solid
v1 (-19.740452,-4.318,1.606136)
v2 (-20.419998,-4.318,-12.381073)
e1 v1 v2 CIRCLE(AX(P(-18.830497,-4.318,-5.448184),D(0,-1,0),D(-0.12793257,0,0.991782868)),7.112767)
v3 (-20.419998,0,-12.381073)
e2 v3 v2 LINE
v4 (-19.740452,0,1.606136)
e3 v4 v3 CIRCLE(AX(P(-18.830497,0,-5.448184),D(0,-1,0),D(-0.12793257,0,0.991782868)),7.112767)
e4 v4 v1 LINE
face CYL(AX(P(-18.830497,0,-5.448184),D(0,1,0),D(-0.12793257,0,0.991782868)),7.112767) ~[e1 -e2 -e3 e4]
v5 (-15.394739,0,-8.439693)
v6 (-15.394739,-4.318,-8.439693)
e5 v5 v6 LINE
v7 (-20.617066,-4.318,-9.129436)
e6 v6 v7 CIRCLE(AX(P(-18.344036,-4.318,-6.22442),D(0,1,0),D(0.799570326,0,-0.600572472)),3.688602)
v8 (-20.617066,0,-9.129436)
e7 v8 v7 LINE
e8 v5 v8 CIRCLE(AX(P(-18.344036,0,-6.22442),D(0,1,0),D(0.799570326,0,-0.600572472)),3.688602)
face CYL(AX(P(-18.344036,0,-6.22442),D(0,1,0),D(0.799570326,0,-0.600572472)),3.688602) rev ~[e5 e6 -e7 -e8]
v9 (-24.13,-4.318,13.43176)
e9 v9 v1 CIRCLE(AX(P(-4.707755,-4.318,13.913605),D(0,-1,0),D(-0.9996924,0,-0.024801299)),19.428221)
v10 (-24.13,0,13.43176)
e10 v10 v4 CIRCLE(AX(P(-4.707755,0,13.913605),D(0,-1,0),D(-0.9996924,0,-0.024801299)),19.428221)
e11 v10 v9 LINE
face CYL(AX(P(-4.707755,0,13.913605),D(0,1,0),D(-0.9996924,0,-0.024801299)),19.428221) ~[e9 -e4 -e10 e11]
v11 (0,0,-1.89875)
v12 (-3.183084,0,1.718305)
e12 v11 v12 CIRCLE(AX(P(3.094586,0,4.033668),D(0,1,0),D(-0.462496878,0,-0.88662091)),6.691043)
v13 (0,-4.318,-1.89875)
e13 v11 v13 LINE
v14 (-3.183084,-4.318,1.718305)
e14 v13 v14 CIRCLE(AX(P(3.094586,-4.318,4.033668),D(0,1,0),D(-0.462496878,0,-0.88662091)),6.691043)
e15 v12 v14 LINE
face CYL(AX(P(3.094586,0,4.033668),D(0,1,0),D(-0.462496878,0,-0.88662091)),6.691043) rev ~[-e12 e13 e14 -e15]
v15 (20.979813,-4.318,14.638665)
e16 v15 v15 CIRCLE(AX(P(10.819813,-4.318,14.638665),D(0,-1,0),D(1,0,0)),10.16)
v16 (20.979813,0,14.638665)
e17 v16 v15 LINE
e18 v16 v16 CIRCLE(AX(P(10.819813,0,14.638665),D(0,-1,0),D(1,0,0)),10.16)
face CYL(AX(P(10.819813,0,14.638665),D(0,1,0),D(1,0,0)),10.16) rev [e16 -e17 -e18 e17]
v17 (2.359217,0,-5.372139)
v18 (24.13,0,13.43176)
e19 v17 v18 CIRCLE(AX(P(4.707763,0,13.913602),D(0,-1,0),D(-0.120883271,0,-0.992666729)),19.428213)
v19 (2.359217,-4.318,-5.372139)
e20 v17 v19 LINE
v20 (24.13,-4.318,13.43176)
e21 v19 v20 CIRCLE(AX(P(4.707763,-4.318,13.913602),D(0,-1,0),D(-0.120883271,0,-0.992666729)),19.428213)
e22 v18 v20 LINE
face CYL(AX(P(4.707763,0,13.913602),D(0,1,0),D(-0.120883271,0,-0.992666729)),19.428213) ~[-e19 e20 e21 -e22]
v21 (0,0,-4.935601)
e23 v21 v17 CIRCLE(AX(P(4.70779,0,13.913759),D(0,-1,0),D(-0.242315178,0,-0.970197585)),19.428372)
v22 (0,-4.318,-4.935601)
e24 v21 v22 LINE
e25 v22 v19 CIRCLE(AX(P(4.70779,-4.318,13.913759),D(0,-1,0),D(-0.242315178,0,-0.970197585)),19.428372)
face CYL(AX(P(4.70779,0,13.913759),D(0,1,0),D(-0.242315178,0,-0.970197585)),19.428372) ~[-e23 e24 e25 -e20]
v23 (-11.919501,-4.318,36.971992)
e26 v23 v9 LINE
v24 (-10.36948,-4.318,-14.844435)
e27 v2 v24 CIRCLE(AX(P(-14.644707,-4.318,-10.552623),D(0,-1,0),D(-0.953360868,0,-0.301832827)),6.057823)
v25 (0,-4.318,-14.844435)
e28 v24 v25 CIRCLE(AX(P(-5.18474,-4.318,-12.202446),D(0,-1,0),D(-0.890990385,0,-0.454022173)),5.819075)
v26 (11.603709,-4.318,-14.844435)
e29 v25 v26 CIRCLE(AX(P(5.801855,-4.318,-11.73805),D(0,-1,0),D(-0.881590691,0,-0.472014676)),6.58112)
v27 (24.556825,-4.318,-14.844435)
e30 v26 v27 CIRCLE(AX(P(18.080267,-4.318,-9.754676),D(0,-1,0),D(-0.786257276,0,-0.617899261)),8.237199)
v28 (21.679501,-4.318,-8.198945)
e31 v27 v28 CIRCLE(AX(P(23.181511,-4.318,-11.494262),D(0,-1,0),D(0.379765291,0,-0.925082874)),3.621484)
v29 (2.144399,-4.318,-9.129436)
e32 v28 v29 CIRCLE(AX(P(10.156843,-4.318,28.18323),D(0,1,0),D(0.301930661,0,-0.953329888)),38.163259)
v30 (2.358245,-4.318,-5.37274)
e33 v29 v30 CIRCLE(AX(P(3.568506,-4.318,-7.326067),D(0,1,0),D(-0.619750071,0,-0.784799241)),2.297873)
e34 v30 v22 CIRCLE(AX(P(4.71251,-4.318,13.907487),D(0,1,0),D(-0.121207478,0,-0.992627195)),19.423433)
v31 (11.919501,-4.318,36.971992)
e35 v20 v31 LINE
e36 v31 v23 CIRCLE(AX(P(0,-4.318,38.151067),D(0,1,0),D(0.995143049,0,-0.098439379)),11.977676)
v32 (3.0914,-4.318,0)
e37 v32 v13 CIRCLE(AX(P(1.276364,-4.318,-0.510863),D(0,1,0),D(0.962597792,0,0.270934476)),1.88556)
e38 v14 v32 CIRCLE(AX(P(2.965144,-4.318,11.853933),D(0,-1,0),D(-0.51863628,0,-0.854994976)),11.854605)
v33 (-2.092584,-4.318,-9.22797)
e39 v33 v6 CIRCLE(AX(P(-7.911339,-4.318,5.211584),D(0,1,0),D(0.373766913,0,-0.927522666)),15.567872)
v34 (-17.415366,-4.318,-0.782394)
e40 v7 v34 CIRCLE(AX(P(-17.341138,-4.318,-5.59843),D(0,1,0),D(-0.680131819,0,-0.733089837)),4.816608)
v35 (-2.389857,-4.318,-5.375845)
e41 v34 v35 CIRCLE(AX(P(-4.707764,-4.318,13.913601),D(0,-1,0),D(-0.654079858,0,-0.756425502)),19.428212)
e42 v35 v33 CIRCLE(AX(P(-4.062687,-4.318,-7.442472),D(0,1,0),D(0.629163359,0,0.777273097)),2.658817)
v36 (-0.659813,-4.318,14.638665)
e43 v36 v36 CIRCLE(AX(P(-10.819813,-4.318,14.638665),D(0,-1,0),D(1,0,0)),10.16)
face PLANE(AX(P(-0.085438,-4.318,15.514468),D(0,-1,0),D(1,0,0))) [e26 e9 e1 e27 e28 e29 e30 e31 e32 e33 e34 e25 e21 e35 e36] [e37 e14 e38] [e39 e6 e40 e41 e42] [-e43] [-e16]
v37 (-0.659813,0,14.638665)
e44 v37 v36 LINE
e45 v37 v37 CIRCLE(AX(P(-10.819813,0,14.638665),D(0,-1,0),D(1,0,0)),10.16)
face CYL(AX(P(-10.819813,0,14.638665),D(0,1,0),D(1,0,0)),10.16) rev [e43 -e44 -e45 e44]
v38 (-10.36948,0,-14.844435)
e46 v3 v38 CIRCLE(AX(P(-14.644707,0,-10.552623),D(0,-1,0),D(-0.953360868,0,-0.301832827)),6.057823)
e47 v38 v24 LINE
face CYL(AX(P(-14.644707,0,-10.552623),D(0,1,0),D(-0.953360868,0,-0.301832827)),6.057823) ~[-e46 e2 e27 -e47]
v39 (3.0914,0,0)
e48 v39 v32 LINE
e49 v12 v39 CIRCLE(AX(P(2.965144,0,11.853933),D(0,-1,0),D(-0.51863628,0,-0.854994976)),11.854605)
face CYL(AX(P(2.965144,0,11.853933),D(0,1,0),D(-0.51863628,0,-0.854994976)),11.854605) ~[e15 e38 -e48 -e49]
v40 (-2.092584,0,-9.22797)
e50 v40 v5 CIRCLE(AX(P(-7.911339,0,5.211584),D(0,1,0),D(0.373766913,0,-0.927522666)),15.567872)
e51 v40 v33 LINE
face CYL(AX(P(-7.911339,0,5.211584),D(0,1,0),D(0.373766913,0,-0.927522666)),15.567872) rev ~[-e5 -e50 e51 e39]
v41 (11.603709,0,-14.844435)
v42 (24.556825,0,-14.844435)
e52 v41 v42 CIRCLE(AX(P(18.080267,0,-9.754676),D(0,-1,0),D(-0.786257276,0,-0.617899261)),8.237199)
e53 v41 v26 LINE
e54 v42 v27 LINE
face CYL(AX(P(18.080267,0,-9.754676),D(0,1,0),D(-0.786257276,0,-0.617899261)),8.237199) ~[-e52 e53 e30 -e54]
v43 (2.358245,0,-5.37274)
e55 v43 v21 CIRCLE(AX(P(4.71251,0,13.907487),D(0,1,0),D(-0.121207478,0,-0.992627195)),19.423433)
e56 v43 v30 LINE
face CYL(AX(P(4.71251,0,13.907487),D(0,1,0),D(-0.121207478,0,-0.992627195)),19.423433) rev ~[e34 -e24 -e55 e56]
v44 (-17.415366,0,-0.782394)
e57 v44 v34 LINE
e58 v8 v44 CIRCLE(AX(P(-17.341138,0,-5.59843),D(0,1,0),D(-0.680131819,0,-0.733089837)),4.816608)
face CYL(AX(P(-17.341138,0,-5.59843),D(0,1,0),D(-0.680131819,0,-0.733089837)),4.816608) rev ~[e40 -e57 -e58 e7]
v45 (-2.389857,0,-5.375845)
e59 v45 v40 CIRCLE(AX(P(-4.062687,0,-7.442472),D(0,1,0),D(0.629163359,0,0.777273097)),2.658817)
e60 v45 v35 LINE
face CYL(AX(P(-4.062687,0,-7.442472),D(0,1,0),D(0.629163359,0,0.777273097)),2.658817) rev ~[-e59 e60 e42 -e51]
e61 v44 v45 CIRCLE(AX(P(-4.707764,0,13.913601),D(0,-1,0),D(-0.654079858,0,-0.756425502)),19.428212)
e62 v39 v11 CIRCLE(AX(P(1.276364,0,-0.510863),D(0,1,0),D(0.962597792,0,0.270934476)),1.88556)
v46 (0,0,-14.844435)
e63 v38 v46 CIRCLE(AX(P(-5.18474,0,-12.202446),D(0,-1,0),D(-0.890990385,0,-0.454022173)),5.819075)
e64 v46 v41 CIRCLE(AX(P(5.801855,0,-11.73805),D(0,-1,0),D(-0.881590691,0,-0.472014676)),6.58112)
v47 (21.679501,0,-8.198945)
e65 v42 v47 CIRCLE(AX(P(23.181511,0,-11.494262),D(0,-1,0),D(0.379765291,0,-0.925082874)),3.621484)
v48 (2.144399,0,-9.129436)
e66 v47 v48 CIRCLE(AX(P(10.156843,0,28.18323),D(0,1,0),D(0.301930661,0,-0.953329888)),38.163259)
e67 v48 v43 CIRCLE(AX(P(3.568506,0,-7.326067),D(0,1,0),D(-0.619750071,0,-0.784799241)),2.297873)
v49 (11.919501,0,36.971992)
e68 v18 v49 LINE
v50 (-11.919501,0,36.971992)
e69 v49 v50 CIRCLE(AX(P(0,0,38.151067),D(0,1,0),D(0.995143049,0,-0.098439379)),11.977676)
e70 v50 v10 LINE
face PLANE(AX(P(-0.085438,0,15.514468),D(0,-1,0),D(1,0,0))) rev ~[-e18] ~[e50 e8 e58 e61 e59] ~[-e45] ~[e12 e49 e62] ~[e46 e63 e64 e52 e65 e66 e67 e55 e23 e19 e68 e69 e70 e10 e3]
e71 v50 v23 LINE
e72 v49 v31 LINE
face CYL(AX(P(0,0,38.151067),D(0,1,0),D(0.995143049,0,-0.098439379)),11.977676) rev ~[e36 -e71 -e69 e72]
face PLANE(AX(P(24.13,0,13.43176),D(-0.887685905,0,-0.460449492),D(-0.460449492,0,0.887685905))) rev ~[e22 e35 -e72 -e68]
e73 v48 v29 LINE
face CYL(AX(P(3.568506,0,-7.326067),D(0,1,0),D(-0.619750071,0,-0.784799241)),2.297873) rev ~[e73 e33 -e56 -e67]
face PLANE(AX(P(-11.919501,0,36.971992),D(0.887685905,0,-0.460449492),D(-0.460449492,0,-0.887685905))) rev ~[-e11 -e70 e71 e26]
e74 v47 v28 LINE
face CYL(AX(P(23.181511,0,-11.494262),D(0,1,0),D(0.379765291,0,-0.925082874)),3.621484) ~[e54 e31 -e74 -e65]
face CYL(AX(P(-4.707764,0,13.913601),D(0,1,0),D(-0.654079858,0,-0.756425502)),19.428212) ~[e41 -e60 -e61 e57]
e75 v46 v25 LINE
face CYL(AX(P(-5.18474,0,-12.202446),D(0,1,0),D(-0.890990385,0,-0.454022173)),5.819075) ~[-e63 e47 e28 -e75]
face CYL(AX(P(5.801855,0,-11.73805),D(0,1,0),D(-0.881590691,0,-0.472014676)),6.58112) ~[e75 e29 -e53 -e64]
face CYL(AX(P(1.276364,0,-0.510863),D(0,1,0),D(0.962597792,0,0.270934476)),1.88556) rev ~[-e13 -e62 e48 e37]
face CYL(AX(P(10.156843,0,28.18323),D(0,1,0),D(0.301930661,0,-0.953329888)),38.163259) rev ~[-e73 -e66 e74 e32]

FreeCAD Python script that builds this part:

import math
import FreeCAD as App
import Part
import Sketcher
from FreeCAD import Vector
Q = App.Units.Quantity

doc = App.newDocument("Part")
body = doc.addObject("PartDesign::Body", "Body")

sketch1 = body.newObject("Sketcher::SketchObject", "Sketch")
sketch1.AttachmentSupport = (doc.getObject("XZ_Plane"), [""])
sketch1.MapMode = "FlatFace"
sketch1.addGeometry(Part.ArcOfCircle(Part.Circle(Vector(0, 38.151067, 0), Vector(0, 0, 1), 11.977676), math.radians(-174.35069), math.radians(-5.64931)), False)
sketch1.addGeometry(Part.LineSegment(Vector(-11.919501, 36.971992, 0), Vector(-24.13, 13.43176, 0)), False)
sketch1.addGeometry(Part.ArcOfCircle(Part.Circle(Vector(-4.707755, 13.913605, 0), Vector(0, 0, 1), 19.428221), math.radians(-178.578845), math.radians(-140.692357)), False)
sketch1.addGeometry(Part.ArcOfCircle(Part.Circle(Vector(-18.830497, -5.448184, 0), Vector(0, 0, 1), 7.112767), math.radians(97.35014), math.radians(257.086988)), False)
sketch1.addGeometry(Part.ArcOfCircle(Part.Circle(Vector(-14.644707, -10.552623, 0), Vector(0, 0, 1), 6.057823), math.radians(-162.43228), math.radians(-45.110917)), False)
sketch1.addGeometry(Part.ArcOfCircle(Part.Circle(Vector(-5.18474, -12.202446, 0), Vector(0, 0, 1), 5.819075), math.radians(-152.997963), math.radians(-27.002037)), False)
sketch1.addGeometry(Part.ArcOfCircle(Part.Circle(Vector(5.801855, -11.73805, 0), Vector(0, 0, 1), 6.58112), math.radians(-151.834847), math.radians(-28.165153)), False)
sketch1.addGeometry(Part.ArcOfCircle(Part.Circle(Vector(18.080267, -9.754676, 0), Vector(0, 0, 1), 8.237199), math.radians(-141.837111), math.radians(-38.162889)), False)
sketch1.addGeometry(Part.ArcOfCircle(Part.Circle(Vector(23.181511, -11.494262, 0), Vector(0, 0, 1), 3.621484), math.radians(-67.680855), math.radians(114.503564)), False)
sketch1.addGeometry(Part.ArcOfCircle(Part.Circle(Vector(10.156843, 28.18323, 0), Vector(0, 0, 1), 38.163259), math.radians(-102.119526), math.radians(-72.4264)), False)
sketch1.addGeometry(Part.ArcOfCircle(Part.Circle(Vector(3.568506, -7.326067, 0), Vector(0, 0, 1), 2.297873), math.radians(121.781913), math.radians(231.702114)), False)
sketch1.addGeometry(Part.ArcOfCircle(Part.Circle(Vector(4.71251, 13.907487, 0), Vector(0, 0, 1), 19.423433), math.radians(-104.041218), math.radians(-96.961795)), False)
sketch1.addGeometry(Part.ArcOfCircle(Part.Circle(Vector(4.70779, 13.913759, 0), Vector(0, 0, 1), 19.428372), math.radians(-104.023224), math.radians(-96.943103)), False)
sketch1.addGeometry(Part.ArcOfCircle(Part.Circle(Vector(4.707763, 13.913602, 0), Vector(0, 0, 1), 19.428213), math.radians(-96.943081), math.radians(-1.421146)), False)
sketch1.addGeometry(Part.LineSegment(Vector(24.13, 13.43176, 0), Vector(11.919501, 36.971992, 0)), False)
sketch1.addGeometry(Part.ArcOfCircle(Part.Circle(Vector(-4.707764, 13.913601, 0), Vector(0, 0, 1), 19.428212), math.radians(-130.849917), math.radians(-83.147934)), False)
sketch1.addGeometry(Part.ArcOfCircle(Part.Circle(Vector(-4.062687, -7.442472, 0), Vector(0, 0, 1), 2.658817), math.radians(-42.185904), math.radians(51.011576)), False)
sketch1.addGeometry(Part.ArcOfCircle(Part.Circle(Vector(-7.911339, 5.211584, 0), Vector(0, 0, 1), 15.567872), math.radians(-118.73081), math.radians(-68.051879)), False)
sketch1.addGeometry(Part.ArcOfCircle(Part.Circle(Vector(-18.344036, -6.22442, 0), Vector(0, 0, 1), 3.688602), math.radians(-128.041414), math.radians(-36.910909)), False)
sketch1.addGeometry(Part.ArcOfCircle(Part.Circle(Vector(-17.341138, -5.59843, 0), Vector(0, 0, 1), 4.816608), math.radians(90.883014), math.radians(227.146055)), False)
sketch1.addGeometry(Part.ArcOfCircle(Part.Circle(Vector(2.965144, 11.853933, 0), Vector(0, 0, 1), 11.854605), math.radians(-121.24082), math.radians(-89.389769)), False)
sketch1.addGeometry(Part.ArcOfCircle(Part.Circle(Vector(1.276364, -0.510863, 0), Vector(0, 0, 1), 1.88556), math.radians(-132.603063), math.radians(15.719881)), False)
sketch1.addGeometry(Part.ArcOfCircle(Part.Circle(Vector(3.094586, 4.033668, 0), Vector(0, 0, 1), 6.691043), math.radians(-159.754752), math.radians(-117.548344)), False)
sketch1.addGeometry(Part.Circle(Vector(-10.819813, 14.638665, 0), Vector(0, 0, 1), 10.16), False)
sketch1.addGeometry(Part.Circle(Vector(10.819813, 14.638665, 0), Vector(0, 0, 1), 10.16), False)
sketch1.addConstraint(Sketcher.Constraint("Coincident", 0, 1, 1, 1))
sketch1.addConstraint(Sketcher.Constraint("Coincident", 1, 2, 2, 1))
sketch1.addConstraint(Sketcher.Constraint("Coincident", 2, 2, 3, 1))
sketch1.addConstraint(Sketcher.Constraint("Coincident", 3, 2, 4, 1))
sketch1.addConstraint(Sketcher.Constraint("Coincident", 4, 2, 5, 1))
sketch1.addConstraint(Sketcher.Constraint("Coincident", 5, 2, 6, 1))
sketch1.addConstraint(Sketcher.Constraint("Coincident", 6, 2, 7, 1))
sketch1.addConstraint(Sketcher.Constraint("Coincident", 7, 2, 8, 1))
sketch1.addConstraint(Sketcher.Constraint("Coincident", 8, 2, 9, 2))
sketch1.addConstraint(Sketcher.Constraint("Coincident", 9, 1, 10, 2))
sketch1.addConstraint(Sketcher.Constraint("Coincident", 10, 1, 11, 2))
sketch1.addConstraint(Sketcher.Constraint("Coincident", 11, 1, 12, 1))
sketch1.addConstraint(Sketcher.Constraint("Coincident", 12, 2, 13, 1))
sketch1.addConstraint(Sketcher.Constraint("Coincident", 13, 2, 14, 1))
sketch1.addConstraint(Sketcher.Constraint("Coincident", 14, 2, 0, 2))
sketch1.addConstraint(Sketcher.Constraint("Coincident", 15, 2, 16, 2))
sketch1.addConstraint(Sketcher.Constraint("Coincident", 16, 1, 17, 2))
sketch1.addConstraint(Sketcher.Constraint("Coincident", 17, 1, 18, 2))
sketch1.addConstraint(Sketcher.Constraint("Coincident", 18, 1, 19, 2))
sketch1.addConstraint(Sketcher.Constraint("Coincident", 19, 1, 15, 1))
sketch1.addConstraint(Sketcher.Constraint("Coincident", 20, 2, 21, 2))
sketch1.addConstraint(Sketcher.Constraint("Coincident", 21, 1, 22, 2))
sketch1.addConstraint(Sketcher.Constraint("Coincident", 22, 1, 20, 1))
sketch1.addConstraint(Sketcher.Constraint("Coincident", 15, 3, 2, 3))
sketch1.addConstraint(Sketcher.Constraint("PointOnObject", 0, 3, -2))
sketch1.addConstraint(Sketcher.Constraint("PointOnObject", 5, 2, -2))
sketch1.addConstraint(Sketcher.Constraint("PointOnObject", 11, 1, -2))
sketch1.addConstraint(Sketcher.Constraint("PointOnObject", 20, 2, -1))
sketch1.addConstraint(Sketcher.Constraint("PointOnObject", 21, 1, -2))
sketch1.addConstraint(Sketcher.Constraint("Diameter", 23, Q("0.8 in")))
sketch1.addConstraint(Sketcher.Constraint("Diameter", 24, Q("0.8 in")))
sketch1.addConstraint(Sketcher.Constraint("DistanceX", 1, 2, -1, 1, Q("0.95 in")))
sketch1.addConstraint(Sketcher.Constraint("DistanceX", -1, 1, 13, 2, Q("0.95 in")))
sketch1.addConstraint(Sketcher.Constraint("Radius", 7, Q("8.237199 mm")))
sketch1.addConstraint(Sketcher.Constraint("Radius", 18, Q("3.688602 mm")))
sketch1.addConstraint(Sketcher.Constraint("Radius", 2, Q("19.428221 mm")))
sketch1.addConstraint(Sketcher.Constraint("Radius", 6, Q("6.58112 mm")))
sketch1.addConstraint(Sketcher.Constraint("Radius", 9, Q("38.163259 mm")))
sketch1.addConstraint(Sketcher.Constraint("Radius", 15, Q("19.428212 mm")))
sketch1.addConstraint(Sketcher.Constraint("Radius", 17, Q("15.567872 mm")))
sketch1.addConstraint(Sketcher.Constraint("Radius", 21, Q("1.88556 mm")))
sketch1.addConstraint(Sketcher.Constraint("DistanceY", 5, 2, 9, 1, Q("0.225 in")))
sketch1.addConstraint(Sketcher.Constraint("Radius", 0, Q("11.977676 mm")))
sketch1.addConstraint(Sketcher.Constraint("Radius", 3, Q("7.112767 mm")))
sketch1.addConstraint(Sketcher.Constraint("Radius", 4, Q("6.057823 mm")))
sketch1.addConstraint(Sketcher.Constraint("Radius", 5, Q("5.819075 mm")))
sketch1.addConstraint(Sketcher.Constraint("Radius", 8, Q("3.621484 mm")))
sketch1.addConstraint(Sketcher.Constraint("Radius", 10, Q("2.297873 mm")))
sketch1.addConstraint(Sketcher.Constraint("Radius", 11, Q("19.423433 mm")))
sketch1.addConstraint(Sketcher.Constraint("Radius", 12, Q("19.428372 mm")))
sketch1.addConstraint(Sketcher.Constraint("Radius", 13, Q("19.428213 mm")))
sketch1.addConstraint(Sketcher.Constraint("Radius", 16, Q("2.658817 mm")))
sketch1.addConstraint(Sketcher.Constraint("Radius", 19, Q("4.816608 mm")))
sketch1.addConstraint(Sketcher.Constraint("Radius", 20, Q("11.854605 mm")))
sketch1.addConstraint(Sketcher.Constraint("Radius", 22, Q("6.691043 mm")))
sketch1.addConstraint(Sketcher.Constraint("DistanceY", 6, 3, 10, 3, Q("0.1737001 in")))
sketch1.addConstraint(Sketcher.Constraint("DistanceY", 16, 3, 19, 3, Q("0.0726001 in")))
sketch1.addConstraint(Sketcher.Constraint("DistanceY", -1, 1, 13, 3, Q("13.913602 mm")))
sketch1.addConstraint(Sketcher.Constraint("DistanceY", -1, 1, 15, 3, Q("13.913601 mm")))
sketch1.addConstraint(Sketcher.Constraint("DistanceX", 0, 1, -1, 1, Q("11.919501 mm")))
sketch1.addConstraint(Sketcher.Constraint("DistanceX", 3, 2, -1, 1, Q("20.419998 mm")))
sketch1.addConstraint(Sketcher.Constraint("DistanceX", -1, 1, 8, 2, Q("21.679501 mm")))
sketch1.addConstraint(Sketcher.Constraint("DistanceX", -1, 1, 9, 1, Q("2.144399 mm")))
sketch1.addConstraint(Sketcher.Constraint("DistanceY", 11, 1, -1, 1, Q("4.935601 mm")))
sketch1.addConstraint(Sketcher.Constraint("DistanceX", -1, 1, 14, 2, Q("11.919501 mm")))
sketch1.addConstraint(Sketcher.Constraint("DistanceX", -1, 1, 20, 2, Q("3.0914 mm")))
sketch1.addConstraint(Sketcher.Constraint("DistanceX", 2, 3, 9, 3, Q("14.864598 mm")))
sketch1.addConstraint(Sketcher.Constraint("DistanceX", 2, 3, 20, 3, Q("7.6729 mm")))
sketch1.addConstraint(Sketcher.Constraint("DistanceX", 3, 2, 3, 3, Q("1.589501 mm")))
sketch1.addConstraint(Sketcher.Constraint("DistanceX", 6, 2, 8, 3, Q("11.577802 mm")))
sketch1.addConstraint(Sketcher.Constraint("DistanceY", 10, 1, 12, 2, Q("0.000601 mm")))
sketch1.addConstraint(Sketcher.Constraint("DistanceY", 13, 2, 12, 3, Q("0.481999 mm")))
sketch1.addConstraint(Sketcher.Constraint("DistanceX", 19, 3, 17, 1, Q("1.946399 mm")))
sketch1.addConstraint(Sketcher.Constraint("DistanceY", 17, 1, 19, 1, Q("7.657299 mm")))
sketch1.addConstraint(Sketcher.Constraint("Distance", 1, Q("26.51865 mm")))
sketch1.addConstraint(Sketcher.Constraint("Distance", 14, Q("26.51865 mm")))
sketch1.addConstraint(Sketcher.Constraint("DistanceX", 5, 3, -1, 1, Q("5.18474 mm")))
sketch1.addConstraint(Sketcher.Constraint("DistanceY", 6, 3, -1, 1, Q("11.73805 mm")))
sketch1.addConstraint(Sketcher.Constraint("DistanceX", -1, 1, 8, 3, Q("23.181511 mm")))
sketch1.addConstraint(Sketcher.Constraint("DistanceY", 8, 3, -1, 1, Q("11.494262 mm")))
sketch1.addConstraint(Sketcher.Constraint("DistanceX", -1, 1, 11, 3, Q("4.71251 mm")))
sketch1.addConstraint(Sketcher.Constraint("DistanceX", 17, 3, -1, 1, Q("7.911339 mm")))
sketch1.addConstraint(Sketcher.Constraint("DistanceY", 18, 3, -1, 1, Q("6.22442 mm")))
sketch1.addConstraint(Sketcher.Constraint("DistanceY", 19, 3, -1, 1, Q("5.59843 mm")))
sketch1.addConstraint(Sketcher.Constraint("DistanceY", -1, 1, 22, 3, Q("4.033668 mm")))
sketch1.addConstraint(Sketcher.Constraint("DistanceX", 4, 2, -1, 1, Q("10.36948 mm")))
sketch1.addConstraint(Sketcher.Constraint("DistanceY", 16, 1, -1, 1, Q("9.22797 mm")))
sketch1.addConstraint(Sketcher.Constraint("DistanceX", 17, 1, -1, 1, Q("15.394739 mm")))
sketch1.addConstraint(Sketcher.Constraint("DistanceY", 21, 1, -1, 1, Q("1.89875 mm")))
sketch1.addConstraint(Sketcher.Constraint("DistanceY", 3, 3, 2, 3, Q("19.36179 mm")))
sketch1.addConstraint(Sketcher.Constraint("DistanceY", 5, 3, 7, 3, Q("2.44777 mm")))
sketch1.addConstraint(Sketcher.Constraint("DistanceX", 23, 3, 15, 3, Q("6.112049 mm")))
sketch1.addConstraint(Sketcher.Constraint("DistanceY", 2, 3, 23, 3, Q("0.72506 mm")))
sketch1.addConstraint(Sketcher.Constraint("DistanceX", 13, 3, 24, 3, Q("6.11205 mm")))
sketch1.addConstraint(Sketcher.Constraint("DistanceY", 20, 3, 24, 3, Q("2.784732 mm")))
pad1 = body.newObject("PartDesign::Pad", "Pad")
pad1.Profile = sketch1
pad1.Length = Q("0.17 in")

doc.recompute()
